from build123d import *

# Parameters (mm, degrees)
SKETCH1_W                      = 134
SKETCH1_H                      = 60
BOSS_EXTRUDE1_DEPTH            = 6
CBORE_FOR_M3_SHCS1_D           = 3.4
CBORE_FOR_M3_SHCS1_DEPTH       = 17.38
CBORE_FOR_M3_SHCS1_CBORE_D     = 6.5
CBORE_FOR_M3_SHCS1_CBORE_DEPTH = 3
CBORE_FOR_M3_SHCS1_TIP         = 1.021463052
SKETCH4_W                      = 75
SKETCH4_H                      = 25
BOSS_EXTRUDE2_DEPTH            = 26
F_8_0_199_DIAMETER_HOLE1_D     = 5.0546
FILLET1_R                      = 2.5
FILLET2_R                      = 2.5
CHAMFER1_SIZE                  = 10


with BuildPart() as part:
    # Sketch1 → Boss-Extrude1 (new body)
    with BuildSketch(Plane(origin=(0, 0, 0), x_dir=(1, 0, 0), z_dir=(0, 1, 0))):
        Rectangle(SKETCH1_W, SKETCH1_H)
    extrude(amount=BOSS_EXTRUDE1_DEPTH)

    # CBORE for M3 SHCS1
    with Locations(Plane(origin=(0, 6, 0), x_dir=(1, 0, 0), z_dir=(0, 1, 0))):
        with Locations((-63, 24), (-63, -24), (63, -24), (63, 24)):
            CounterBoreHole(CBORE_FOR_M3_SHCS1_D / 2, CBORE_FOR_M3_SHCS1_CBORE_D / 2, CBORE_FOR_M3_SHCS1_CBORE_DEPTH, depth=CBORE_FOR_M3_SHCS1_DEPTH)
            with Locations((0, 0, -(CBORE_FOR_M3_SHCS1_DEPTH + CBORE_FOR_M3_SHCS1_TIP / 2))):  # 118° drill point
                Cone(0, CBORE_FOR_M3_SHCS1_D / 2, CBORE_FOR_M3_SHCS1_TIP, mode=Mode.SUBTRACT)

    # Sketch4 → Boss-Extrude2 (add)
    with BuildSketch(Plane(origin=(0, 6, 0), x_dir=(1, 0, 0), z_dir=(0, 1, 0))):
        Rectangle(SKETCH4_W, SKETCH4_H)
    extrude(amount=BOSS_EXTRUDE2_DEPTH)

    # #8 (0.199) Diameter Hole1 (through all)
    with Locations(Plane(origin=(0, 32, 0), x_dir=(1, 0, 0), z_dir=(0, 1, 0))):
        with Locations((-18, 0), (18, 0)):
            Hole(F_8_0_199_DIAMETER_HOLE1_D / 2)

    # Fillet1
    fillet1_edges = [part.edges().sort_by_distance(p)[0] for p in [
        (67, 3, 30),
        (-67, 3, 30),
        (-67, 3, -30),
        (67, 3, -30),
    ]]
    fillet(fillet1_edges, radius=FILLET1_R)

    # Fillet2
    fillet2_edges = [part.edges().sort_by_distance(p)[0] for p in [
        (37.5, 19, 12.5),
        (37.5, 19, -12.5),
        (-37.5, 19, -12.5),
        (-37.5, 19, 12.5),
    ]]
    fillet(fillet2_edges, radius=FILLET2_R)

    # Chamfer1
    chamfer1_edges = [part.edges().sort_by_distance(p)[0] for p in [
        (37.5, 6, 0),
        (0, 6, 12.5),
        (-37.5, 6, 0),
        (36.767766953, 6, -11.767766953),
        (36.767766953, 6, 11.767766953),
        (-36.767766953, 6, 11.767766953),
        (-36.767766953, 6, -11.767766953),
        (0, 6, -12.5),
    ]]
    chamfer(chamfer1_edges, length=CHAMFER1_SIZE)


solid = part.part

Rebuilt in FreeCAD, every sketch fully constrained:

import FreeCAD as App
import Part
import Sketcher


def edges_at(feature, points):
    """Names of the edges that pass closest to the given points."""
    edges = feature.Shape.Edges
    near = lambda p: min(range(len(edges)), key=lambda i: edges[i].distToShape(Part.Vertex(*p))[0])
    return sorted({f"Edge{near(p) + 1}" for p in points})


def add_polygon(sketch, points):
    """Adds a closed chain of lines whose ends are joined by coincident constraints."""
    first, n = sketch.GeometryCount, len(points)
    for a, b in zip(points, points[1:] + points[:1]):
        sketch.addGeometry(Part.LineSegment(App.Vector(*a, 0), App.Vector(*b, 0)), False)
    for i in range(n):
        sketch.addConstraint(Sketcher.Constraint("Coincident", first + i, 2, first + (i + 1) % n, 1))

doc = App.newDocument("Part")
body = doc.addObject("PartDesign::Body", "Body")

# Sketch on XZ plane
sketch1 = doc.addObject("Sketcher::SketchObject", "Sketch")
body.addObject(sketch1)
sketch1.AttachmentSupport = (doc.XZ_Plane, [""])
sketch1.MapMode = "FlatFace"
add_polygon(sketch1, [(-67, -30), (-67, 30), (67, 30), (67, -30)])  # lines 0-3
sketch1.addConstraint(Sketcher.Constraint("Vertical", 0))
sketch1.addConstraint(Sketcher.Constraint("Horizontal", 1))
sketch1.addConstraint(Sketcher.Constraint("Vertical", 2))
sketch1.addConstraint(Sketcher.Constraint("Horizontal", 3))
sketch1.addConstraint(Sketcher.Constraint("Symmetric", 0, 2, 2, 2, -1, 1))
sketch1.addConstraint(Sketcher.Constraint("DistanceX", 1, 1, 1, 2, 134.0))
sketch1.addConstraint(Sketcher.Constraint("DistanceY", 0, 1, 0, 2, 60.0))
pad1 = doc.addObject("PartDesign::Pad", "Pad")
body.addObject(pad1)
pad1.Profile = sketch1
pad1.Length = 6
pad1.Reversed = True

# Sketch on XZ plane
sketch2 = doc.addObject("Sketcher::SketchObject", "Sketch001")
body.addObject(sketch2)
sketch2.AttachmentSupport = (doc.XZ_Plane, [""])
sketch2.MapMode = "FlatFace"
sketch2.AttachmentOffset = App.Placement(App.Vector(0, 0, -6), App.Rotation())
sketch2.addGeometry(Part.Circle(App.Vector(-63, -24, 0), App.Vector(0, 0, 1), 1.7), False)
sketch2.addGeometry(Part.Circle(App.Vector(-63, 24, 0), App.Vector(0, 0, 1), 1.7), False)
sketch2.addGeometry(Part.Circle(App.Vector(63, 24, 0), App.Vector(0, 0, 1), 1.7), False)
sketch2.addGeometry(Part.Circle(App.Vector(63, -24, 0), App.Vector(0, 0, 1), 1.7), False)
sketch2.addConstraint(Sketcher.Constraint("Equal", 0, 1))
sketch2.addConstraint(Sketcher.Constraint("Equal", 1, 2))
sketch2.addConstraint(Sketcher.Constraint("Equal", 2, 3))
sketch2.addConstraint(Sketcher.Constraint("Symmetric", 0, 3, 2, 3, -1, 1))
sketch2.addConstraint(Sketcher.Constraint("Symmetric", 1, 3, 3, 3, -1, 1))
sketch2.addConstraint(Sketcher.Constraint("Symmetric", 1, 3, 2, 3, -2))
sketch2.addConstraint(Sketcher.Constraint("Diameter", 0, 3.4))
sketch2.addConstraint(Sketcher.Constraint("DistanceX", 0, 3, -1, 1, 63.0))
sketch2.addConstraint(Sketcher.Constraint("DistanceY", 0, 3, -1, 1, 24.0))
doc.recompute()
hole = doc.addObject("PartDesign::Hole", "Hole")
body.addObject(hole)
hole.Profile = sketch2
hole.ThreadType = "None"
hole.Diameter = 3.4
hole.DepthType = "Dimension"
hole.Depth = 17.38
hole.DrillPoint = "Angled"
hole.DrillPointAngle = 118
hole.HoleCutType = "Counterbore"
hole.HoleCutDiameter = 6.5
hole.HoleCutDepth = 3
hole.Reversed = True

# Sketch on XZ plane
sketch3 = doc.addObject("Sketcher::SketchObject", "Sketch002")
body.addObject(sketch3)
sketch3.AttachmentSupport = (doc.XZ_Plane, [""])
sketch3.MapMode = "FlatFace"
sketch3.AttachmentOffset = App.Placement(App.Vector(0, 0, -6), App.Rotation())
add_polygon(sketch3, [(-37.5, -12.5), (-37.5, 12.5), (37.5, 12.5), (37.5, -12.5)])  # lines 0-3
sketch3.addConstraint(Sketcher.Constraint("Vertical", 0))
sketch3.addConstraint(Sketcher.Constraint("Horizontal", 1))
sketch3.addConstraint(Sketcher.Constraint("Vertical", 2))
sketch3.addConstraint(Sketcher.Constraint("Horizontal", 3))
sketch3.addConstraint(Sketcher.Constraint("Symmetric", 0, 2, 2, 2, -1, 1))
sketch3.addConstraint(Sketcher.Constraint("DistanceX", 1, 1, 1, 2, 75.0))
sketch3.addConstraint(Sketcher.Constraint("DistanceY", 0, 1, 0, 2, 25.0))
pad2 = doc.addObject("PartDesign::Pad", "Pad001")
body.addObject(pad2)
pad2.Profile = sketch3
pad2.Length = 26
pad2.Reversed = True

# Sketch on XZ plane
sketch4 = doc.addObject("Sketcher::SketchObject", "Sketch003")
body.addObject(sketch4)
sketch4.AttachmentSupport = (doc.XZ_Plane, [""])
sketch4.MapMode = "FlatFace"
sketch4.AttachmentOffset = App.Placement(App.Vector(0, 0, -32), App.Rotation())
sketch4.addGeometry(Part.Circle(App.Vector(-18, 0, 0), App.Vector(0, 0, 1), 2.5273), False)
sketch4.addGeometry(Part.Circle(App.Vector(18, 0, 0), App.Vector(0, 0, 1), 2.5273), False)
sketch4.addConstraint(Sketcher.Constraint("Equal", 0, 1))
sketch4.addConstraint(Sketcher.Constraint("Symmetric", 0, 3, 1, 3, -1, 1))
sketch4.addConstraint(Sketcher.Constraint("PointOnObject", 0, 3, -1))
sketch4.addConstraint(Sketcher.Constraint("DistanceX", 0, 3, -1, 1, 18.0))
sketch4.addConstraint(Sketcher.Constraint("Diameter", 0, 5.0546))
doc.recompute()
hole2 = doc.addObject("PartDesign::Hole", "Hole001")
body.addObject(hole2)
hole2.Profile = sketch4
hole2.ThreadType = "None"
hole2.Diameter = 5.0546
hole2.DepthType = "ThroughAll"
hole2.Reversed = True
doc.recompute()

fillet = doc.addObject("PartDesign::Fillet", "Fillet")
body.addObject(fillet)
fillet.Base = (hole2, edges_at(hole2, [
    (67, 3, 30),
    (-67, 3, 30),
    (-67, 3, -30),
    (67, 3, -30),
]))
fillet.Radius = 2.5
doc.recompute()

fillet2 = doc.addObject("PartDesign::Fillet", "Fillet001")
body.addObject(fillet2)
fillet2.Base = (fillet, edges_at(fillet, [
    (37.5, 19, 12.5),
    (37.5, 19, -12.5),
    (-37.5, 19, -12.5),
    (-37.5, 19, 12.5),
]))
fillet2.Radius = 2.5
doc.recompute()

chamfer = doc.addObject("PartDesign::Chamfer", "Chamfer")
body.addObject(chamfer)
chamfer.Base = (fillet2, edges_at(fillet2, [
    (37.5, 6, 0),
    (0, 6, 12.5),
    (-37.5, 6, 0),
    (36.768, 6, -11.768),
    (36.768, 6, 11.768),
    (-36.768, 6, 11.768),
    (-36.768, 6, -11.768),
    (0, 6, -12.5),
]))
chamfer.Size = 10

doc.recompute()
